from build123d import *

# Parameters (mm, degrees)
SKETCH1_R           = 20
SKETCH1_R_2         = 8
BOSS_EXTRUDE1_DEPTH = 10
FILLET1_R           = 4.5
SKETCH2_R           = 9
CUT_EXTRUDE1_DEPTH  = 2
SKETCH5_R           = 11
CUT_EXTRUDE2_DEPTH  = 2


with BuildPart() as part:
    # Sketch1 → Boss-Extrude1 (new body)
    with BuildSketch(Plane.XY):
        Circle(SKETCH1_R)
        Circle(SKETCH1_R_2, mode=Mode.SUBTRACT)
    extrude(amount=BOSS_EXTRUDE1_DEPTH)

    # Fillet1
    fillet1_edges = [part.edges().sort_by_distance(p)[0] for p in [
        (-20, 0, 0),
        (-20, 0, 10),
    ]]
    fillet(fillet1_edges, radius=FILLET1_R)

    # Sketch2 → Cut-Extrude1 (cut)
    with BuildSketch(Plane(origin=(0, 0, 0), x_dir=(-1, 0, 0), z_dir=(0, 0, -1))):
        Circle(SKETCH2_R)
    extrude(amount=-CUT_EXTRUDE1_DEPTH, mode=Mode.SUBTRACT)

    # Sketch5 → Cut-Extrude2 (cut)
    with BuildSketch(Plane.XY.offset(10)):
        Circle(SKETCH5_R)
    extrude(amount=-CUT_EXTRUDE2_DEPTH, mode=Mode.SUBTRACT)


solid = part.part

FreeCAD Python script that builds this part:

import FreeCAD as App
import Part
import Sketcher


def edges_at(feature, points):
    """Names of the edges that pass closest to the given points."""
    edges = feature.Shape.Edges
    near = lambda p: min(range(len(edges)), key=lambda i: edges[i].distToShape(Part.Vertex(*p))[0])
    return sorted({f"Edge{near(p) + 1}" for p in points})

doc = App.newDocument("Part")
body = doc.addObject("PartDesign::Body", "Body")

# Sketch on XY plane
sketch1 = doc.addObject("Sketcher::SketchObject", "Sketch")
body.addObject(sketch1)
sketch1.AttachmentSupport = (doc.XY_Plane, [""])
sketch1.MapMode = "FlatFace"
sketch1.addGeometry(Part.Circle(App.Vector(0, 0, 0), App.Vector(0, 0, 1), 20), False)
sketch1.addGeometry(Part.Circle(App.Vector(0, 0, 0), App.Vector(0, 0, 1), 8), False)
sketch1.addConstraint(Sketcher.Constraint("Coincident", 0, 3, -1, 1))
sketch1.addConstraint(Sketcher.Constraint("Coincident", 1, 3, -1, 1))
sketch1.addConstraint(Sketcher.Constraint("Diameter", 0, 40.0))
sketch1.addConstraint(Sketcher.Constraint("Diameter", 1, 16.0))
pad1 = doc.addObject("PartDesign::Pad", "Pad")
body.addObject(pad1)
pad1.Profile = sketch1
pad1.Length = 10
doc.recompute()

fillet = doc.addObject("PartDesign::Fillet", "Fillet")
body.addObject(fillet)
fillet.Base = (pad1, edges_at(pad1, [(-20, 0, 0), (-20, 0, 10)]))
fillet.Radius = 4.5

# Sketch on XY plane
sketch2 = doc.addObject("Sketcher::SketchObject", "Sketch001")
body.addObject(sketch2)
sketch2.AttachmentSupport = (doc.XY_Plane, [""])
sketch2.MapMode = "FlatFace"
sketch2.addGeometry(Part.Circle(App.Vector(0, 0, 0), App.Vector(0, 0, 1), 9), False)
sketch2.addConstraint(Sketcher.Constraint("Coincident", 0, 3, -1, 1))
sketch2.addConstraint(Sketcher.Constraint("Diameter", 0, 18.0))
pocket1 = doc.addObject("PartDesign::Pocket", "Pocket")
body.addObject(pocket1)
pocket1.Profile = sketch2
pocket1.Length = 2
pocket1.Reversed = True

# Sketch on XY plane
sketch3 = doc.addObject("Sketcher::SketchObject", "Sketch002")
body.addObject(sketch3)
sketch3.AttachmentSupport = (doc.XY_Plane, [""])
sketch3.MapMode = "FlatFace"
sketch3.AttachmentOffset = App.Placement(App.Vector(0, 0, 10), App.Rotation())
sketch3.addGeometry(Part.Circle(App.Vector(0, 0, 0), App.Vector(0, 0, 1), 11), False)
sketch3.addConstraint(Sketcher.Constraint("Coincident", 0, 3, -1, 1))
sketch3.addConstraint(Sketcher.Constraint("Diameter", 0, 22.0))
pocket2 = doc.addObject("PartDesign::Pocket", "Pocket001")
body.addObject(pocket2)
pocket2.Profile = sketch3
pocket2.Length = 2

doc.recompute()
